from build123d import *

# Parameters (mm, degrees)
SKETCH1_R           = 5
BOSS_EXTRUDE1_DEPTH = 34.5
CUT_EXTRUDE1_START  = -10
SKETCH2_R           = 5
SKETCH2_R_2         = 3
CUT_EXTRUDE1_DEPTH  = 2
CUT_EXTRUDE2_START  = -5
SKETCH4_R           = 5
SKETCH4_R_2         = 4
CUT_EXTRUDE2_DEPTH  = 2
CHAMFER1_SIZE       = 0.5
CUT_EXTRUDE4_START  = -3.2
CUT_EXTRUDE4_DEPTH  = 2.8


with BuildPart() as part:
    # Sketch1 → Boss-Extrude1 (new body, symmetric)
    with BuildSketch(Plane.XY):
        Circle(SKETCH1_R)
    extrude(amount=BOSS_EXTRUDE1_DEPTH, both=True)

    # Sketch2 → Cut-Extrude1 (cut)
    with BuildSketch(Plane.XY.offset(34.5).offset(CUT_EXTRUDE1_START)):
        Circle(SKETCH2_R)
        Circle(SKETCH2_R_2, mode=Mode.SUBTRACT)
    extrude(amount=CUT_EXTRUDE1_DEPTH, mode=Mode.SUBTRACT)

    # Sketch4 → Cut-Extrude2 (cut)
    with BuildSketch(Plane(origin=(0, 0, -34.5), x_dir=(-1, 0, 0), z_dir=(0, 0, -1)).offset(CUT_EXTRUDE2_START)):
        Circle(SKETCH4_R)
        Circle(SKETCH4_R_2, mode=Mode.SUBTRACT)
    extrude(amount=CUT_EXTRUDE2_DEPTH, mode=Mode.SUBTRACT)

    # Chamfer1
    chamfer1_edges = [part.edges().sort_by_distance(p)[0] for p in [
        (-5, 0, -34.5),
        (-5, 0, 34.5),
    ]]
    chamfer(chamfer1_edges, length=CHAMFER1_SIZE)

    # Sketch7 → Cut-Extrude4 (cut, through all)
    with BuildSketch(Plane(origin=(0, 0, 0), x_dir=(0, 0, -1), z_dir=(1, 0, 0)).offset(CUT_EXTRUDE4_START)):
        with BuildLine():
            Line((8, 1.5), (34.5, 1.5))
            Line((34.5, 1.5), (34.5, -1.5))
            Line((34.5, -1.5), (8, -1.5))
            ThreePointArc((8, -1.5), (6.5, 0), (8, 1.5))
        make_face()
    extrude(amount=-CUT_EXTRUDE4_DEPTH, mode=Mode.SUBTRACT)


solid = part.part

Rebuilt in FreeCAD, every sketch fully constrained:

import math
import FreeCAD as App
import Part
import Sketcher

V = App.Vector


def edges_at(feature, points):
    """Names of the edges that pass closest to the given points."""
    edges = feature.Shape.Edges
    near = lambda p: min(range(len(edges)), key=lambda i: edges[i].distToShape(Part.Vertex(*p))[0])
    return sorted({f"Edge{near(p) + 1}" for p in points})

doc = App.newDocument("Part")
body = doc.addObject("PartDesign::Body", "Body")

# Sketch on XY plane
sketch1 = doc.addObject("Sketcher::SketchObject", "Sketch")
body.addObject(sketch1)
sketch1.AttachmentSupport = (doc.XY_Plane, [""])
sketch1.MapMode = "FlatFace"
sketch1.addGeometry(Part.Circle(V(0, 0, 0), V(0, 0, 1), 5), False)
sketch1.addConstraint(Sketcher.Constraint("Coincident", 0, 3, -1, 1))
sketch1.addConstraint(Sketcher.Constraint("Diameter", 0, 10.0))
pad1 = doc.addObject("PartDesign::Pad", "Pad")
body.addObject(pad1)
pad1.Profile = sketch1
pad1.Length = 69
pad1.Midplane = True

# Sketch on XY plane
sketch2 = doc.addObject("Sketcher::SketchObject", "Sketch001")
body.addObject(sketch2)
sketch2.AttachmentSupport = (doc.XY_Plane, [""])
sketch2.MapMode = "FlatFace"
sketch2.AttachmentOffset = App.Placement(V(0, 0, 24.5), App.Rotation())
sketch2.addGeometry(Part.Circle(V(0, 0, 0), V(0, 0, 1), 5), False)
sketch2.addGeometry(Part.Circle(V(0, 0, 0), V(0, 0, 1), 3), False)
sketch2.addConstraint(Sketcher.Constraint("Coincident", 0, 3, -1, 1))
sketch2.addConstraint(Sketcher.Constraint("Coincident", 1, 3, -1, 1))
sketch2.addConstraint(Sketcher.Constraint("Diameter", 0, 10.0))
sketch2.addConstraint(Sketcher.Constraint("Diameter", 1, 6.0))
pocket1 = doc.addObject("PartDesign::Pocket", "Pocket")
body.addObject(pocket1)
pocket1.Profile = sketch2
pocket1.Length = 2
pocket1.Reversed = True

# Sketch on XY plane
sketch3 = doc.addObject("Sketcher::SketchObject", "Sketch002")
body.addObject(sketch3)
sketch3.AttachmentSupport = (doc.XY_Plane, [""])
sketch3.MapMode = "FlatFace"
sketch3.AttachmentOffset = App.Placement(V(0, 0, -29.5), App.Rotation())
sketch3.addGeometry(Part.Circle(V(0, 0, 0), V(0, 0, 1), 5), False)
sketch3.addGeometry(Part.Circle(V(0, 0, 0), V(0, 0, 1), 4), False)
sketch3.addConstraint(Sketcher.Constraint("Coincident", 0, 3, -1, 1))
sketch3.addConstraint(Sketcher.Constraint("Coincident", 1, 3, -1, 1))
sketch3.addConstraint(Sketcher.Constraint("Diameter", 0, 10.0))
sketch3.addConstraint(Sketcher.Constraint("Diameter", 1, 8.0))
pocket2 = doc.addObject("PartDesign::Pocket", "Pocket001")
body.addObject(pocket2)
pocket2.Profile = sketch3
pocket2.Length = 2
doc.recompute()

chamfer = doc.addObject("PartDesign::Chamfer", "Chamfer")
body.addObject(chamfer)
chamfer.Base = (pocket2, edges_at(pocket2, [(-5, 0, -34.5), (-5, 0, 34.5)]))
chamfer.Size = 0.5

# Sketch on YZ plane
sketch4 = doc.addObject("Sketcher::SketchObject", "Sketch003")
body.addObject(sketch4)
sketch4.AttachmentSupport = (doc.YZ_Plane, [""])
sketch4.MapMode = "FlatFace"
sketch4.AttachmentOffset = App.Placement(V(0, 0, -3.2), App.Rotation())
sketch4.addGeometry(Part.LineSegment(V(1.5, -34.5, 0), V(1.5, -8, 0)), False)
sketch4.addGeometry(Part.ArcOfCircle(Part.Circle(V(0, -8, 0), V(0, 0, 1), 1.5), math.radians(0), math.radians(180)), False)
sketch4.addGeometry(Part.LineSegment(V(-1.5, -8, 0), V(-1.5, -34.5, 0)), False)
sketch4.addGeometry(Part.LineSegment(V(-1.5, -34.5, 0), V(1.5, -34.5, 0)), False)
sketch4.addConstraint(Sketcher.Constraint("Tangent", 0, 2, 1, 1))
sketch4.addConstraint(Sketcher.Constraint("Tangent", 1, 2, 2, 1))
sketch4.addConstraint(Sketcher.Constraint("Coincident", 2, 2, 3, 1))
sketch4.addConstraint(Sketcher.Constraint("Coincident", 3, 2, 0, 1))
sketch4.addConstraint(Sketcher.Constraint("Vertical", 0))
sketch4.addConstraint(Sketcher.Constraint("Vertical", 2))
sketch4.addConstraint(Sketcher.Constraint("Horizontal", 3))
sketch4.addConstraint(Sketcher.Constraint("PointOnObject", 1, 3, -2))
sketch4.addConstraint(Sketcher.Constraint("Radius", 1, 1.5))
sketch4.addConstraint(Sketcher.Constraint("DistanceY", 0, 1, 0, 2, 26.5))
sketch4.addConstraint(Sketcher.Constraint("DistanceY", 1, 3, -1, 1, 8.0))
pocket3 = doc.addObject("PartDesign::Pocket", "Pocket002")
body.addObject(pocket3)
pocket3.Profile = sketch4
pocket3.Type = "ThroughAll"

doc.recompute()
